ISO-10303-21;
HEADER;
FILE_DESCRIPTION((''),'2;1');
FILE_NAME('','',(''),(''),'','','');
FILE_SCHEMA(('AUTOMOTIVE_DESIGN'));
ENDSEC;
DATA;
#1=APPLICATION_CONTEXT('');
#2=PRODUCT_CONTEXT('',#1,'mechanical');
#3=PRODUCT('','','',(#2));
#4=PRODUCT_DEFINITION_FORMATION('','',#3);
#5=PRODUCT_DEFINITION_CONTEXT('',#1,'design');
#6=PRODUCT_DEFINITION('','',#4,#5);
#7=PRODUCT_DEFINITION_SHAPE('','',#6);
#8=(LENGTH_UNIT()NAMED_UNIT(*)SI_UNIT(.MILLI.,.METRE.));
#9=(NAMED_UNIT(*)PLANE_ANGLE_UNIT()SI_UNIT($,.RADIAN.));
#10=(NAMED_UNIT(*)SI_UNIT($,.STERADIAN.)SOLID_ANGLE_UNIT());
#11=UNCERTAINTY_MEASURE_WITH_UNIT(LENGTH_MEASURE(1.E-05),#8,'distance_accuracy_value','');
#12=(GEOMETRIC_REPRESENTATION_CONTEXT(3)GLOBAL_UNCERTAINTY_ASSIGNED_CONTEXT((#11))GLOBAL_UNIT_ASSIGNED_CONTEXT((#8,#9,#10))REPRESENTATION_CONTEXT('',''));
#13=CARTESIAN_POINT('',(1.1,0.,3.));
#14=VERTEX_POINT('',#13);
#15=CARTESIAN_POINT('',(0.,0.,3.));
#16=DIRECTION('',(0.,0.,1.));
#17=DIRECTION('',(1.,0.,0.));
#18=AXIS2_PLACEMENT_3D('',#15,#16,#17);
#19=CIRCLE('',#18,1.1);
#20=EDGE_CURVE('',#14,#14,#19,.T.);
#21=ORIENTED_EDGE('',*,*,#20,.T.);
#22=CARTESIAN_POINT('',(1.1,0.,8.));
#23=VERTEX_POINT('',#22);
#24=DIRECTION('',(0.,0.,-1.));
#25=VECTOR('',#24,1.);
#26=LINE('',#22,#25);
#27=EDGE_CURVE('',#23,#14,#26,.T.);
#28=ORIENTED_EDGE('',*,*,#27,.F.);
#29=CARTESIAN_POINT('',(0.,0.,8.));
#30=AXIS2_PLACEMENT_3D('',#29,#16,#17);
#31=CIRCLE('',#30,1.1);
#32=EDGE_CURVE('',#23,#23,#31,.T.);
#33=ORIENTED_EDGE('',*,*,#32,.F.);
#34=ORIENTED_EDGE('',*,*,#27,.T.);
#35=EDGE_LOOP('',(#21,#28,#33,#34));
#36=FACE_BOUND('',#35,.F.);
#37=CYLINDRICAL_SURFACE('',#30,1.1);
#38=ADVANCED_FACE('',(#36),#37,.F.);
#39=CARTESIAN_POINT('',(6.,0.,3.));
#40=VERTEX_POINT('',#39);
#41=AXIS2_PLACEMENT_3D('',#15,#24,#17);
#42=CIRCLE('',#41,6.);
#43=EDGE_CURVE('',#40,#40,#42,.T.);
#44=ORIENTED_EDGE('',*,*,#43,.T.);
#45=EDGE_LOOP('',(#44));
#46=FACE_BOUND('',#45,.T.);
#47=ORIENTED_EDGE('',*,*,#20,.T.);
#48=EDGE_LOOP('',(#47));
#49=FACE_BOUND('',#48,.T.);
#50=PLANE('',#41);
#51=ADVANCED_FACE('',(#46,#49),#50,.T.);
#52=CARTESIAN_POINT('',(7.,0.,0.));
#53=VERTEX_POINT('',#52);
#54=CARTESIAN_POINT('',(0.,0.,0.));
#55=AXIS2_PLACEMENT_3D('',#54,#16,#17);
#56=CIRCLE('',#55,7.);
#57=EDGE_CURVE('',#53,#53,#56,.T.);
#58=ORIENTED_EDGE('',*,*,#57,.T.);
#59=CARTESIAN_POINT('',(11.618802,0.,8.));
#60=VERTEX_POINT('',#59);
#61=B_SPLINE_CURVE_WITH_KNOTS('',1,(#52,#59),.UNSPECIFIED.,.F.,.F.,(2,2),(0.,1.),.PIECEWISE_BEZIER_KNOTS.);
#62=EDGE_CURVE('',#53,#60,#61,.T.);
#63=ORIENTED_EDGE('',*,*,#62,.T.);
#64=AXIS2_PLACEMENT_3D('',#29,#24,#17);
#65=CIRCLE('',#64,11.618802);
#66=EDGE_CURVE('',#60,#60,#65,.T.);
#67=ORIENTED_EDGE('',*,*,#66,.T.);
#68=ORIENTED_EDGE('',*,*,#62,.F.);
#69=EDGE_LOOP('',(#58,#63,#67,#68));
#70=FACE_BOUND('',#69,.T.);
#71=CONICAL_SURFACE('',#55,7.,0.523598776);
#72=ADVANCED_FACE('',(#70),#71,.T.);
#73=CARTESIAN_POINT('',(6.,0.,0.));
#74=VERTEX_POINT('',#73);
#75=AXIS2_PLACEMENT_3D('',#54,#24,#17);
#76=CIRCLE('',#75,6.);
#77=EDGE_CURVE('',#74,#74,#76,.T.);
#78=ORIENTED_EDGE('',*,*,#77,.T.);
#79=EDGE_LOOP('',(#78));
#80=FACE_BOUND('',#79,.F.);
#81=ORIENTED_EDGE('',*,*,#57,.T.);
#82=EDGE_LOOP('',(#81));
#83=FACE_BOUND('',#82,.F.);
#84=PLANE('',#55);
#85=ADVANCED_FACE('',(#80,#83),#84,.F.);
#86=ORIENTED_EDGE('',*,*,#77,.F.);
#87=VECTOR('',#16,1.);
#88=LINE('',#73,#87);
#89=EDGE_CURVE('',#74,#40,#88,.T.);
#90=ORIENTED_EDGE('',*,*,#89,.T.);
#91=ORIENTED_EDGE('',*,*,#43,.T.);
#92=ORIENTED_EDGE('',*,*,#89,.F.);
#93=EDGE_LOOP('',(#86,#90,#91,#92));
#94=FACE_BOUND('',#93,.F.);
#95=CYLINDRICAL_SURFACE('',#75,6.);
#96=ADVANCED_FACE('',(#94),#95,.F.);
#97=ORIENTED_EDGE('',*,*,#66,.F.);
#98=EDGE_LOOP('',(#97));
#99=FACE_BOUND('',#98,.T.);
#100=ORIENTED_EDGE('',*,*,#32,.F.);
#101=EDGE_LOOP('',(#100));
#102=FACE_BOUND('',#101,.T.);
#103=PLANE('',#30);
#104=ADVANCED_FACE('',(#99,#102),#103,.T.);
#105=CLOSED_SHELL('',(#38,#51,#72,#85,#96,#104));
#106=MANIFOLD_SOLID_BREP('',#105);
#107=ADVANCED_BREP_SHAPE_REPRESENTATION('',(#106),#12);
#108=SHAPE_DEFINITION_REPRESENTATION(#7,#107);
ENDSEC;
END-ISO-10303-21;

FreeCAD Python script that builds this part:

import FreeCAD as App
import Part
import Sketcher
Q = App.Units.Quantity

doc = App.newDocument("Part")
params = doc.addObject("Spreadsheet::Sheet", "Params")
for row, (alias, value) in enumerate([
    ("sketch1_diameter", "14 mm"),
    ("pad1_length", "8 mm"),
    ("pad1_taper", "30 deg"),
    ("sketch2_diameter", "12 mm"),
    ("pocket1_length", "3 mm"),
    ("sketch3_diameter", "2.2 mm"),
    ("pocket2_length", "25 mm"),
], start=1):
    params.set(f"A{row}", alias)
    params.set(f"B{row}", "=" + value)
    params.setAlias(f"B{row}", alias)

body = doc.addObject("PartDesign::Body", "Body")

# Sketch on XY plane
sketch1 = body.newObject("Sketcher::SketchObject", "Sketch")
sketch1.AttachmentSupport = (doc.getObject("XY_Plane"), [""])
sketch1.MapMode = "FlatFace"
sketch1.addGeometry(Part.Circle(App.Vector(0, 0, 0), App.Vector(0, 0, 1), 7), False)
sketch1.addConstraint([
    Sketcher.Constraint("Coincident", 0, 3, -1, 1),
    Sketcher.Constraint("Diameter", 0, Q("14 mm")),
])
sketch1.setExpression("Constraints[1]", "Params.sketch1_diameter")
pad1 = body.newObject("PartDesign::Pad", "Pad")
pad1.Profile = sketch1
pad1.setExpression("Length", "Params.pad1_length")
pad1.setExpression("TaperAngle", "Params.pad1_taper")

# Sketch on XY plane
sketch2 = body.newObject("Sketcher::SketchObject", "Sketch001")
sketch2.AttachmentSupport = (doc.getObject("XY_Plane"), [""])
sketch2.MapMode = "FlatFace"
sketch2.addGeometry(Part.Circle(App.Vector(0, 0, 0), App.Vector(0, 0, 1), 6), False)
sketch2.addConstraint([
    Sketcher.Constraint("Coincident", 0, 3, -1, 1),
    Sketcher.Constraint("Diameter", 0, Q("12 mm")),
])
sketch2.setExpression("Constraints[1]", "Params.sketch2_diameter")
pocket1 = body.newObject("PartDesign::Pocket", "Pocket")
pocket1.Profile = sketch2
pocket1.setExpression("Length", "Params.pocket1_length")
pocket1.Reversed = True

# Sketch on XY plane
sketch3 = body.newObject("Sketcher::SketchObject", "Sketch002")
sketch3.AttachmentSupport = (doc.getObject("XY_Plane"), [""])
sketch3.MapMode = "FlatFace"
sketch3.AttachmentOffset = App.Placement(App.Vector(0, 0, 8), App.Rotation())
sketch3.addGeometry(Part.Circle(App.Vector(0, 0, 0), App.Vector(0, 0, 1), 1.1), False)
sketch3.addConstraint([
    Sketcher.Constraint("Coincident", 0, 3, -1, 1),
    Sketcher.Constraint("Diameter", 0, Q("2.2 mm")),
])
sketch3.setExpression("Constraints[1]", "Params.sketch3_diameter")
pocket2 = body.newObject("PartDesign::Pocket", "Pocket001")
pocket2.Profile = sketch3
pocket2.setExpression("Length", "Params.pocket2_length")

doc.recompute()
